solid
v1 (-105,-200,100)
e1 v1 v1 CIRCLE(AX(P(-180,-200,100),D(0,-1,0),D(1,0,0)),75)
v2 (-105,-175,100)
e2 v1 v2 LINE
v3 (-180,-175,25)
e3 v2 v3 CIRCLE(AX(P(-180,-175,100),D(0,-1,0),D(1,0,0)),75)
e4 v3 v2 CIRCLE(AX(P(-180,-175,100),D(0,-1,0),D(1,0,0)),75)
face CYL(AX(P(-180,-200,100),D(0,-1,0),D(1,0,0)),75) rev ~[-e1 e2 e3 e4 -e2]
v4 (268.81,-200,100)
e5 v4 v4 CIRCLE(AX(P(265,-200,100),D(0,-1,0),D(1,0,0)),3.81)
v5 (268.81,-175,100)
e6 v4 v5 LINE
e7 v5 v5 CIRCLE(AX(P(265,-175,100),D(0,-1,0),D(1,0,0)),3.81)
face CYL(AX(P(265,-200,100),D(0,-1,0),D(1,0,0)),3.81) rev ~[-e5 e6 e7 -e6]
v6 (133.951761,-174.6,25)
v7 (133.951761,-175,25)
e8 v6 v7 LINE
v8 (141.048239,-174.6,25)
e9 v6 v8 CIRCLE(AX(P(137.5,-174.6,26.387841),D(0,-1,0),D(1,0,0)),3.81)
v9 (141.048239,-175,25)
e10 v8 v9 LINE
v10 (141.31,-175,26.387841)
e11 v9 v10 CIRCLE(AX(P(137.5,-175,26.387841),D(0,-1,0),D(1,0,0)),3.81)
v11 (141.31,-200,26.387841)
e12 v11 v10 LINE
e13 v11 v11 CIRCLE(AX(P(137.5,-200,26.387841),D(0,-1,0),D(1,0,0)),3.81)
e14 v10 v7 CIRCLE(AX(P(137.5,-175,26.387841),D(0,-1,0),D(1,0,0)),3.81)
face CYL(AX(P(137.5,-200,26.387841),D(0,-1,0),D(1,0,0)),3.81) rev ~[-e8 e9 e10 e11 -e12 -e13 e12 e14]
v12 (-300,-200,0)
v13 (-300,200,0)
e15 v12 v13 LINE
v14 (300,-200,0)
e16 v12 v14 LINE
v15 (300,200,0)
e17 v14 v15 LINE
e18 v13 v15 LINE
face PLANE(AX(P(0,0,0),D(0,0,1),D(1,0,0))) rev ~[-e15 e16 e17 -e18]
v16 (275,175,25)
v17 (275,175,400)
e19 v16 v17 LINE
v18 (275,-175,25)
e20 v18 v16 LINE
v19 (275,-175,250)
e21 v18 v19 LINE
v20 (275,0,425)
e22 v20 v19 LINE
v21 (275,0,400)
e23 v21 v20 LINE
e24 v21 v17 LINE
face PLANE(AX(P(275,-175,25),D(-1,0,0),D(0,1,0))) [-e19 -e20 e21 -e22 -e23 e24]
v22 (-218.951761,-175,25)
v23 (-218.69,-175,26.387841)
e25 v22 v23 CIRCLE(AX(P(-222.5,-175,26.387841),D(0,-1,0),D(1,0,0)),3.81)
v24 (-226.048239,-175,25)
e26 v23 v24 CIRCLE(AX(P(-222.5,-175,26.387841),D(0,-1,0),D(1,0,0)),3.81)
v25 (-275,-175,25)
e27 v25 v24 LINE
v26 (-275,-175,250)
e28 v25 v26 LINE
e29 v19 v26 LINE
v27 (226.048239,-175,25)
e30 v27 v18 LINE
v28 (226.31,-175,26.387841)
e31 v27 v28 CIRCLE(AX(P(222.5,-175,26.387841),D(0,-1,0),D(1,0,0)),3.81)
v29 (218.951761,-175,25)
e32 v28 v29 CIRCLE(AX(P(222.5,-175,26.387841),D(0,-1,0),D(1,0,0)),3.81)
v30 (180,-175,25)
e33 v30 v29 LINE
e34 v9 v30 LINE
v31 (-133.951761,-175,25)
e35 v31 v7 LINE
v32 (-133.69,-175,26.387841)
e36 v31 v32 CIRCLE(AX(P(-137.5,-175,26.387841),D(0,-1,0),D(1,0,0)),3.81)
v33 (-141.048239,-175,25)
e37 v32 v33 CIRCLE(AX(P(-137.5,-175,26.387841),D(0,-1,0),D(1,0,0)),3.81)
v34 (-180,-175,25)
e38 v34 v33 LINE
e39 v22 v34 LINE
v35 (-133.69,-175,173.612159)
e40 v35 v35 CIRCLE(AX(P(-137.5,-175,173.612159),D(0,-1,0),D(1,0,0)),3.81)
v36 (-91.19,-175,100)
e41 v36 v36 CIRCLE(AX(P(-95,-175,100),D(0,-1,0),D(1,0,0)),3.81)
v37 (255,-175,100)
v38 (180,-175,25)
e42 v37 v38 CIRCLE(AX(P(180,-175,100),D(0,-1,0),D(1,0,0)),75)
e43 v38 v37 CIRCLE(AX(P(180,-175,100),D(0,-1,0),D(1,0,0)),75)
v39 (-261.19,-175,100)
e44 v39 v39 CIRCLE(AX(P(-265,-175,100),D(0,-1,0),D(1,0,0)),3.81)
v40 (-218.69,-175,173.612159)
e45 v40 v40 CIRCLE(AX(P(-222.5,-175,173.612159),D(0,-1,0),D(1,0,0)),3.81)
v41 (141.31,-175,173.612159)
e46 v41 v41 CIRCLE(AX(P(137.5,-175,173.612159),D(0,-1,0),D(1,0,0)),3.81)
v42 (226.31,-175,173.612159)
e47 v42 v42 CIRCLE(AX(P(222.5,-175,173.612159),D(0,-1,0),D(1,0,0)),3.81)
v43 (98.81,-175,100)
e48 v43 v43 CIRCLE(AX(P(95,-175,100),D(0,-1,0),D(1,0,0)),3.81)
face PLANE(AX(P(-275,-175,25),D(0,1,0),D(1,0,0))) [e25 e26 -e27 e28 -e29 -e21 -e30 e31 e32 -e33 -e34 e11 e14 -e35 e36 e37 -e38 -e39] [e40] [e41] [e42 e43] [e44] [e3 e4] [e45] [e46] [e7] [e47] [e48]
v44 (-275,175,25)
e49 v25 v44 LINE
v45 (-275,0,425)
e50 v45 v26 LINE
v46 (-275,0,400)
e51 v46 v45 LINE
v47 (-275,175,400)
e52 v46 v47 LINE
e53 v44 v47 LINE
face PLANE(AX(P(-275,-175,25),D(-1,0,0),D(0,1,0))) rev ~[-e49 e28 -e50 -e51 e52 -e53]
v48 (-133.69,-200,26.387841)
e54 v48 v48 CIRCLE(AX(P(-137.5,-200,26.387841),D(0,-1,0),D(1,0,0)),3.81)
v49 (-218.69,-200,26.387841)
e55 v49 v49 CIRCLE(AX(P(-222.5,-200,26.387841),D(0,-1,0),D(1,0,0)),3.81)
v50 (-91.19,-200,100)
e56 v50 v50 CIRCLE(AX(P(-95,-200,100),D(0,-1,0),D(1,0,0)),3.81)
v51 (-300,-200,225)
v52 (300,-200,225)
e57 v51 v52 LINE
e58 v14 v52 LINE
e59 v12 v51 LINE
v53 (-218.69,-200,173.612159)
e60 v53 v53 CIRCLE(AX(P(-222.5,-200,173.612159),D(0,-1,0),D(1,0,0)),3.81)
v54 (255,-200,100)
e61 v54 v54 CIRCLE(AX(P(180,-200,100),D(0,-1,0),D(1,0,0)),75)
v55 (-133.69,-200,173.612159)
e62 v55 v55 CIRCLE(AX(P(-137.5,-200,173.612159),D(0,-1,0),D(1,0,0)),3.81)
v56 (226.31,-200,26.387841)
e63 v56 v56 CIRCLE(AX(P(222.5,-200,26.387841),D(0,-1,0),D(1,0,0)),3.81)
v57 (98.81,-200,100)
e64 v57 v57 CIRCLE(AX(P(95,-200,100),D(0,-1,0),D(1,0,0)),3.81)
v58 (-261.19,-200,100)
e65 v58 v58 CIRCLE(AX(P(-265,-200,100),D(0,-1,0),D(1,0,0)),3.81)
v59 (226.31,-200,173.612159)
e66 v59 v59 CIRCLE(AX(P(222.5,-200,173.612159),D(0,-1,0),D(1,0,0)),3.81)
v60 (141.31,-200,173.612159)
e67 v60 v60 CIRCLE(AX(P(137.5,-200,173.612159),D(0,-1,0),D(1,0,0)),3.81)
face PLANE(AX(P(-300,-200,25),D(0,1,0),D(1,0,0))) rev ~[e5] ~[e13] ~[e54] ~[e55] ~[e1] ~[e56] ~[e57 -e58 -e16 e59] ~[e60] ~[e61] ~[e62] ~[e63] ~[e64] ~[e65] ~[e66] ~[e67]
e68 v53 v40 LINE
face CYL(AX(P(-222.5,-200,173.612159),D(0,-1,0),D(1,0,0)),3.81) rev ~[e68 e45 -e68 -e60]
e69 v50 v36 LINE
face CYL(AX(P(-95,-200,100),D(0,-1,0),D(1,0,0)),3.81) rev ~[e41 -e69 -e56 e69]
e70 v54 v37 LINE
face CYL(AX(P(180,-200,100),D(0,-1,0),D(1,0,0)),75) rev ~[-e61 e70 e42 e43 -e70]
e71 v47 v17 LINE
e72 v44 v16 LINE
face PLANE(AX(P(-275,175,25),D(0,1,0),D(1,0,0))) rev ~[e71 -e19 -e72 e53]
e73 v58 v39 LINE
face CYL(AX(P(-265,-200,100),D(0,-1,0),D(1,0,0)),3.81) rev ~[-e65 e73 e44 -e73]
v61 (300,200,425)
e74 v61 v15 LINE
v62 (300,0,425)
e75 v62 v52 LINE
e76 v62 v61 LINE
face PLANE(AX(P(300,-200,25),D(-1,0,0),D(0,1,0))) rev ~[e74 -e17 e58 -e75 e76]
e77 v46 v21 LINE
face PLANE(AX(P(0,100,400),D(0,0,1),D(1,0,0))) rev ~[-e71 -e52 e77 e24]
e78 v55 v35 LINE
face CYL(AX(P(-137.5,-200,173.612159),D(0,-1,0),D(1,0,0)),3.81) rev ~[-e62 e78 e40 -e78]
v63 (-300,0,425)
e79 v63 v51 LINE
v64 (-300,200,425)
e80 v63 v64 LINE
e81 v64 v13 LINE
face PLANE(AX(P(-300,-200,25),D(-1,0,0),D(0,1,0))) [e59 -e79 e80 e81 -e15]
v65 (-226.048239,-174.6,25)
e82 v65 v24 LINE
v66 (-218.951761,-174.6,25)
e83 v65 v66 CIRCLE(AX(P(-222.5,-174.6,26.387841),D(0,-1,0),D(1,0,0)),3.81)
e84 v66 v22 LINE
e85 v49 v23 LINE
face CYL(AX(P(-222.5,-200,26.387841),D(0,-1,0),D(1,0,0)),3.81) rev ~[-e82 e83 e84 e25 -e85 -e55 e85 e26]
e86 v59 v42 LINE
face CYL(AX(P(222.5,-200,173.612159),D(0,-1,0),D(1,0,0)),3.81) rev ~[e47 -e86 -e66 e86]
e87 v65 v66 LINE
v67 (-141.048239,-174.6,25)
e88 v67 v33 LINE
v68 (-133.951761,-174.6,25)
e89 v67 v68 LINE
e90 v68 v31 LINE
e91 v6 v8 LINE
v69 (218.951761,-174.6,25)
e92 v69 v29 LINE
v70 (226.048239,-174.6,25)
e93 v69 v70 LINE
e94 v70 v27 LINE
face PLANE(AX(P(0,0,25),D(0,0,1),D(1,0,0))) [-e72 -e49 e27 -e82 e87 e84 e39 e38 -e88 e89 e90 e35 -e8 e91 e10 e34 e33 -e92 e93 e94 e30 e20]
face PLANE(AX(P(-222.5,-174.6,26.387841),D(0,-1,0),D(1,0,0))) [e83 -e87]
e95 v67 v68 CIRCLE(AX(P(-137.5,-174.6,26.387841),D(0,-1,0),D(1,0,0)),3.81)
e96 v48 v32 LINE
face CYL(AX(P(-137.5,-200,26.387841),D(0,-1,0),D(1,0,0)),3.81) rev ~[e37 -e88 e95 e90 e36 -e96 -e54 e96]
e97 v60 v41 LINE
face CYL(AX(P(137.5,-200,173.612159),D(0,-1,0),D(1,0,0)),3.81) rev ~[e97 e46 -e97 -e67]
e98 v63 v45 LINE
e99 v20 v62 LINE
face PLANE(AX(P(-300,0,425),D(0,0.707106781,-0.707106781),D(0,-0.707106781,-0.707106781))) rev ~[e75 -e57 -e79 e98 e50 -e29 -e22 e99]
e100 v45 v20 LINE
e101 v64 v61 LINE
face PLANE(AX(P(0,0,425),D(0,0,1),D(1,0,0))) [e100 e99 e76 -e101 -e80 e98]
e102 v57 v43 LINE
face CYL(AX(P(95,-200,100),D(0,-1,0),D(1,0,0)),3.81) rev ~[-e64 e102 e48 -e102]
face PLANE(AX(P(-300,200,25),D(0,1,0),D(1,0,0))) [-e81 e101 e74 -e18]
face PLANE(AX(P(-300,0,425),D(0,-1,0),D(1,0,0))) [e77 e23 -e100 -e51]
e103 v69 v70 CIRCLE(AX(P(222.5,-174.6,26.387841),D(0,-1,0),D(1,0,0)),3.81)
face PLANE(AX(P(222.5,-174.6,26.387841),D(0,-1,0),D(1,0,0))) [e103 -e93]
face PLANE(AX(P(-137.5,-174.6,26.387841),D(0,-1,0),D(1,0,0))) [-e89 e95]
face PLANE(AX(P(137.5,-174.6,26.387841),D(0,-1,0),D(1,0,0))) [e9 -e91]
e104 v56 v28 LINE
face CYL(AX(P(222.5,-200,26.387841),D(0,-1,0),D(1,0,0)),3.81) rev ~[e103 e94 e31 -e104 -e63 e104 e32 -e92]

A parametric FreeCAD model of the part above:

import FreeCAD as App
import Part
import Sketcher


def add_polygon(sketch, points):
    """Adds a closed chain of lines whose ends are joined by coincident constraints."""
    first, n = sketch.GeometryCount, len(points)
    for a, b in zip(points, points[1:] + points[:1]):
        sketch.addGeometry(Part.LineSegment(App.Vector(*a, 0), App.Vector(*b, 0)), False)
    for i in range(n):
        sketch.addConstraint(Sketcher.Constraint("Coincident", first + i, 2, first + (i + 1) % n, 1))

doc = App.newDocument("Part")
body = doc.addObject("PartDesign::Body", "Body")

# Sketch on XY plane
sketch1 = body.newObject("Sketcher::SketchObject", "Sketch")
sketch1.AttachmentSupport = (doc.getObject("XY_Plane"), [""])
sketch1.MapMode = "FlatFace"
add_polygon(sketch1, [(-300, 200), (-300, -200), (300, -200), (300, 200)])  # lines 0-3
sketch1.addConstraint(Sketcher.Constraint("Vertical", 0))
sketch1.addConstraint(Sketcher.Constraint("Horizontal", 1))
sketch1.addConstraint(Sketcher.Constraint("Vertical", 2))
sketch1.addConstraint(Sketcher.Constraint("Horizontal", 3))
sketch1.addConstraint(Sketcher.Constraint("Symmetric", 0, 2, 2, 2, -1, 1))
sketch1.addConstraint(Sketcher.Constraint("DistanceX", 1, 1, 1, 2, 600.0))
sketch1.addConstraint(Sketcher.Constraint("DistanceY", 0, 2, 0, 1, 400.0))
pad1 = body.newObject("PartDesign::Pad", "Pad")
pad1.Profile = sketch1
pad1.Length = 25

# Sketch on XY plane
sketch2 = body.newObject("Sketcher::SketchObject", "Sketch001")
sketch2.AttachmentSupport = (doc.getObject("XY_Plane"), [""])
sketch2.MapMode = "FlatFace"
sketch2.AttachmentOffset = App.Placement(App.Vector(0, 0, 25), App.Rotation())
add_polygon(sketch2, [(-300, 200), (-300, -200), (300, -200), (300, 200)])  # lines 0-3
add_polygon(sketch2, [(275, -175), (-275, -175), (-275, 175), (275, 175)])  # lines 4-7
sketch2.addConstraint(Sketcher.Constraint("Vertical", 0))
sketch2.addConstraint(Sketcher.Constraint("Horizontal", 1))
sketch2.addConstraint(Sketcher.Constraint("Vertical", 2))
sketch2.addConstraint(Sketcher.Constraint("Horizontal", 3))
sketch2.addConstraint(Sketcher.Constraint("Horizontal", 4))
sketch2.addConstraint(Sketcher.Constraint("Vertical", 5))
sketch2.addConstraint(Sketcher.Constraint("Horizontal", 6))
sketch2.addConstraint(Sketcher.Constraint("Vertical", 7))
sketch2.addConstraint(Sketcher.Constraint("Symmetric", 0, 2, 2, 2, -1, 1))
sketch2.addConstraint(Sketcher.Constraint("Symmetric", 4, 2, 6, 2, -1, 1))
sketch2.addConstraint(Sketcher.Constraint("DistanceX", 1, 1, 1, 2, 600.0))
sketch2.addConstraint(Sketcher.Constraint("DistanceX", 4, 2, 4, 1, 550.0))
sketch2.addConstraint(Sketcher.Constraint("DistanceY", 0, 2, 0, 1, 400.0))
sketch2.addConstraint(Sketcher.Constraint("DistanceY", 5, 1, 5, 2, 350.0))
pad2 = body.newObject("PartDesign::Pad", "Pad001")
pad2.Profile = sketch2
pad2.Length = 400

# Sketch on YZ plane
sketch3 = body.newObject("Sketcher::SketchObject", "Sketch002")
sketch3.AttachmentSupport = (doc.getObject("YZ_Plane"), [""])
sketch3.MapMode = "FlatFace"
sketch3.AttachmentOffset = App.Placement(App.Vector(0, 0, -300), App.Rotation())
add_polygon(sketch3, [(-200, 225), (-200, 425), (0, 425)])  # lines 0-2
sketch3.addConstraint(Sketcher.Constraint("Vertical", 0))
sketch3.addConstraint(Sketcher.Constraint("Horizontal", 1))
sketch3.addConstraint(Sketcher.Constraint("PointOnObject", 1, 2, -2))
sketch3.addConstraint(Sketcher.Constraint("Equal", 1, 0))
sketch3.addConstraint(Sketcher.Constraint("DistanceX", 1, 1, 1, 2, 200.0))
sketch3.addConstraint(Sketcher.Constraint("DistanceY", -1, 1, 0, 2, 425.0))
pocket1 = body.newObject("PartDesign::Pocket", "Pocket")
pocket1.Profile = sketch3
pocket1.Type = "ThroughAll"
pocket1.Reversed = True

# Sketch on XY plane
sketch4 = body.newObject("Sketcher::SketchObject", "Sketch003")
sketch4.AttachmentSupport = (doc.getObject("XY_Plane"), [""])
sketch4.MapMode = "FlatFace"
sketch4.AttachmentOffset = App.Placement(App.Vector(0, 0, 425), App.Rotation())
add_polygon(sketch4, [(-300, 200), (-300, 0), (300, 0), (300, 200)])  # lines 0-3
sketch4.addConstraint(Sketcher.Constraint("Vertical", 0))
sketch4.addConstraint(Sketcher.Constraint("Horizontal", 1))
sketch4.addConstraint(Sketcher.Constraint("Vertical", 2))
sketch4.addConstraint(Sketcher.Constraint("Horizontal", 3))
sketch4.addConstraint(Sketcher.Constraint("Symmetric", 0, 2, 1, 2, -1, 1))
sketch4.addConstraint(Sketcher.Constraint("DistanceX", 1, 1, 1, 2, 600.0))
sketch4.addConstraint(Sketcher.Constraint("DistanceY", 0, 2, 0, 1, 200.0))
pad3 = body.newObject("PartDesign::Pad", "Pad002")
pad3.Profile = sketch4
pad3.Length = 25
pad3.Reversed = True

# Sketch on XZ plane
sketch5 = body.newObject("Sketcher::SketchObject", "Sketch004")
sketch5.AttachmentSupport = (doc.getObject("XZ_Plane"), [""])
sketch5.MapMode = "FlatFace"
sketch5.AttachmentOffset = App.Placement(App.Vector(0, 0, 200), App.Rotation())
sketch5.addGeometry(Part.Circle(App.Vector(-180, 100, 0), App.Vector(0, 0, 1), 75), False)
sketch5.addGeometry(Part.Circle(App.Vector(180, 100, 0), App.Vector(0, 0, 1), 75), False)
sketch5.addGeometry(Part.Circle(App.Vector(-95, 100, 0), App.Vector(0, 0, 1), 3.81), False)
sketch5.addGeometry(Part.Circle(App.Vector(-137.5, 173.612159, 0), App.Vector(0, 0, 1), 3.81), False)
sketch5.addGeometry(Part.Circle(App.Vector(-222.5, 173.612159, 0), App.Vector(0, 0, 1), 3.81), False)
sketch5.addGeometry(Part.Circle(App.Vector(-265, 100, 0), App.Vector(0, 0, 1), 3.81), False)
sketch5.addGeometry(Part.Circle(App.Vector(-222.5, 26.387841, 0), App.Vector(0, 0, 1), 3.81), False)
sketch5.addGeometry(Part.Circle(App.Vector(-137.5, 26.387841, 0), App.Vector(0, 0, 1), 3.81), False)
sketch5.addGeometry(Part.Circle(App.Vector(95, 100, 0), App.Vector(0, 0, 1), 3.81), False)
sketch5.addGeometry(Part.Circle(App.Vector(137.5, 26.387841, 0), App.Vector(0, 0, 1), 3.81), False)
sketch5.addGeometry(Part.Circle(App.Vector(222.5, 26.387841, 0), App.Vector(0, 0, 1), 3.81), False)
sketch5.addGeometry(Part.Circle(App.Vector(265, 100, 0), App.Vector(0, 0, 1), 3.81), False)
sketch5.addGeometry(Part.Circle(App.Vector(222.5, 173.612159, 0), App.Vector(0, 0, 1), 3.81), False)
sketch5.addGeometry(Part.Circle(App.Vector(137.5, 173.612159, 0), App.Vector(0, 0, 1), 3.81), False)
sketch5.addConstraint(Sketcher.Constraint("Equal", 0, 1))
sketch5.addConstraint(Sketcher.Constraint("Equal", 2, 3))
sketch5.addConstraint(Sketcher.Constraint("Equal", 3, 4))
sketch5.addConstraint(Sketcher.Constraint("Equal", 4, 5))
sketch5.addConstraint(Sketcher.Constraint("Equal", 5, 6))
sketch5.addConstraint(Sketcher.Constraint("Equal", 6, 7))
sketch5.addConstraint(Sketcher.Constraint("Equal", 7, 8))
sketch5.addConstraint(Sketcher.Constraint("Equal", 8, 9))
sketch5.addConstraint(Sketcher.Constraint("Equal", 9, 10))
sketch5.addConstraint(Sketcher.Constraint("Equal", 10, 11))
sketch5.addConstraint(Sketcher.Constraint("Equal", 11, 12))
sketch5.addConstraint(Sketcher.Constraint("Equal", 12, 13))
sketch5.addConstraint(Sketcher.Constraint("Symmetric", 0, 3, 1, 3, -2))
sketch5.addConstraint(Sketcher.Constraint("Symmetric", 2, 3, 8, 3, -2))
sketch5.addConstraint(Sketcher.Constraint("Symmetric", 7, 3, 9, 3, -2))
sketch5.addConstraint(Sketcher.Constraint("Symmetric", 6, 3, 10, 3, -2))
sketch5.addConstraint(Sketcher.Constraint("Symmetric", 5, 3, 11, 3, -2))
sketch5.addConstraint(Sketcher.Constraint("Symmetric", 4, 3, 12, 3, -2))
sketch5.addConstraint(Sketcher.Constraint("Symmetric", 3, 3, 13, 3, -2))
sketch5.addConstraint(Sketcher.Constraint("Horizontal", 1, 3, 2, 3))
sketch5.addConstraint(Sketcher.Constraint("Horizontal", 3, 3, 4, 3))
sketch5.addConstraint(Sketcher.Constraint("Horizontal", 2, 3, 5, 3))
sketch5.addConstraint(Sketcher.Constraint("Horizontal", 6, 3, 7, 3))
sketch5.addConstraint(Sketcher.Constraint("Vertical", 4, 3, 6, 3))
sketch5.addConstraint(Sketcher.Constraint("Vertical", 3, 3, 7, 3))
sketch5.addConstraint(Sketcher.Constraint("Diameter", 0, 150.0))
sketch5.addConstraint(Sketcher.Constraint("Diameter", 2, 7.62))
sketch5.addConstraint(Sketcher.Constraint("DistanceX", 0, 3, -1, 1, 180.0))
sketch5.addConstraint(Sketcher.Constraint("DistanceY", -1, 1, 0, 3, 100.0))
sketch5.addConstraint(Sketcher.Constraint("DistanceX", 2, 3, -1, 1, 95.0))
sketch5.addConstraint(Sketcher.Constraint("DistanceX", 5, 3, -1, 1, 265.0))
sketch5.addConstraint(Sketcher.Constraint("DistanceX", 4, 3, 3, 3, 85.0))
sketch5.addConstraint(Sketcher.Constraint("DistanceX", 7, 3, 9, 3, 275.0))
sketch5.addConstraint(Sketcher.Constraint("DistanceY", -1, 1, 3, 3, 173.612159))
sketch5.addConstraint(Sketcher.Constraint("DistanceY", -1, 1, 6, 3, 26.387841))
pocket2 = body.newObject("PartDesign::Pocket", "Pocket001")
pocket2.Profile = sketch5
pocket2.Length = 25.4

# Sketch on XZ plane
sketch6 = body.newObject("Sketcher::SketchObject", "Sketch005")
sketch6.AttachmentSupport = (doc.getObject("XZ_Plane"), [""])
sketch6.MapMode = "FlatFace"
sketch6.AttachmentOffset = App.Placement(App.Vector(0, 0, 200), App.Rotation())
sketch6.addGeometry(Part.Circle(App.Vector(-180, 100, 0), App.Vector(0, 0, 1), 75), False)
sketch6.addGeometry(Part.Circle(App.Vector(180, 100, 0), App.Vector(0, 0, 1), 75), False)
sketch6.addGeometry(Part.Circle(App.Vector(-95, 100, 0), App.Vector(0, 0, 1), 3.81), False)
sketch6.addGeometry(Part.Circle(App.Vector(-137.5, 173.612159, 0), App.Vector(0, 0, 1), 3.81), False)
sketch6.addGeometry(Part.Circle(App.Vector(-222.5, 173.612159, 0), App.Vector(0, 0, 1), 3.81), False)
sketch6.addGeometry(Part.Circle(App.Vector(-265, 100, 0), App.Vector(0, 0, 1), 3.81), False)
sketch6.addGeometry(Part.Circle(App.Vector(-222.5, 26.387841, 0), App.Vector(0, 0, 1), 3.81), False)
sketch6.addGeometry(Part.Circle(App.Vector(-137.5, 26.387841, 0), App.Vector(0, 0, 1), 3.81), False)
sketch6.addGeometry(Part.Circle(App.Vector(95, 100, 0), App.Vector(0, 0, 1), 3.81), False)
sketch6.addGeometry(Part.Circle(App.Vector(137.5, 26.387841, 0), App.Vector(0, 0, 1), 3.81), False)
sketch6.addGeometry(Part.Circle(App.Vector(222.5, 26.387841, 0), App.Vector(0, 0, 1), 3.81), False)
sketch6.addGeometry(Part.Circle(App.Vector(265, 100, 0), App.Vector(0, 0, 1), 3.81), False)
sketch6.addGeometry(Part.Circle(App.Vector(222.5, 173.612159, 0), App.Vector(0, 0, 1), 3.81), False)
sketch6.addGeometry(Part.Circle(App.Vector(137.5, 173.612159, 0), App.Vector(0, 0, 1), 3.81), False)
sketch6.addConstraint(Sketcher.Constraint("Equal", 0, 1))
sketch6.addConstraint(Sketcher.Constraint("Equal", 2, 3))
sketch6.addConstraint(Sketcher.Constraint("Equal", 3, 4))
sketch6.addConstraint(Sketcher.Constraint("Equal", 4, 5))
sketch6.addConstraint(Sketcher.Constraint("Equal", 5, 6))
sketch6.addConstraint(Sketcher.Constraint("Equal", 6, 7))
sketch6.addConstraint(Sketcher.Constraint("Equal", 7, 8))
sketch6.addConstraint(Sketcher.Constraint("Equal", 8, 9))
sketch6.addConstraint(Sketcher.Constraint("Equal", 9, 10))
sketch6.addConstraint(Sketcher.Constraint("Equal", 10, 11))
sketch6.addConstraint(Sketcher.Constraint("Equal", 11, 12))
sketch6.addConstraint(Sketcher.Constraint("Equal", 12, 13))
sketch6.addConstraint(Sketcher.Constraint("Symmetric", 0, 3, 1, 3, -2))
sketch6.addConstraint(Sketcher.Constraint("Symmetric", 2, 3, 8, 3, -2))
sketch6.addConstraint(Sketcher.Constraint("Symmetric", 7, 3, 9, 3, -2))
sketch6.addConstraint(Sketcher.Constraint("Symmetric", 6, 3, 10, 3, -2))
sketch6.addConstraint(Sketcher.Constraint("Symmetric", 5, 3, 11, 3, -2))
sketch6.addConstraint(Sketcher.Constraint("Symmetric", 4, 3, 12, 3, -2))
sketch6.addConstraint(Sketcher.Constraint("Symmetric", 3, 3, 13, 3, -2))
sketch6.addConstraint(Sketcher.Constraint("Horizontal", 1, 3, 2, 3))
sketch6.addConstraint(Sketcher.Constraint("Horizontal", 3, 3, 4, 3))
sketch6.addConstraint(Sketcher.Constraint("Horizontal", 2, 3, 5, 3))
sketch6.addConstraint(Sketcher.Constraint("Horizontal", 6, 3, 7, 3))
sketch6.addConstraint(Sketcher.Constraint("Vertical", 4, 3, 6, 3))
sketch6.addConstraint(Sketcher.Constraint("Vertical", 3, 3, 7, 3))
sketch6.addConstraint(Sketcher.Constraint("Diameter", 0, 150.0))
sketch6.addConstraint(Sketcher.Constraint("Diameter", 2, 7.62))
sketch6.addConstraint(Sketcher.Constraint("DistanceX", 0, 3, -1, 1, 180.0))
sketch6.addConstraint(Sketcher.Constraint("DistanceY", -1, 1, 0, 3, 100.0))
sketch6.addConstraint(Sketcher.Constraint("DistanceX", 2, 3, -1, 1, 95.0))
sketch6.addConstraint(Sketcher.Constraint("DistanceX", 5, 3, -1, 1, 265.0))
sketch6.addConstraint(Sketcher.Constraint("DistanceX", 4, 3, 3, 3, 85.0))
sketch6.addConstraint(Sketcher.Constraint("DistanceX", 7, 3, 9, 3, 275.0))
sketch6.addConstraint(Sketcher.Constraint("DistanceY", -1, 1, 3, 3, 173.612159))
sketch6.addConstraint(Sketcher.Constraint("DistanceY", -1, 1, 6, 3, 26.387841))
pocket3 = body.newObject("PartDesign::Pocket", "Pocket002")
pocket3.Profile = sketch6
pocket3.Length = 25.4

doc.recompute()
